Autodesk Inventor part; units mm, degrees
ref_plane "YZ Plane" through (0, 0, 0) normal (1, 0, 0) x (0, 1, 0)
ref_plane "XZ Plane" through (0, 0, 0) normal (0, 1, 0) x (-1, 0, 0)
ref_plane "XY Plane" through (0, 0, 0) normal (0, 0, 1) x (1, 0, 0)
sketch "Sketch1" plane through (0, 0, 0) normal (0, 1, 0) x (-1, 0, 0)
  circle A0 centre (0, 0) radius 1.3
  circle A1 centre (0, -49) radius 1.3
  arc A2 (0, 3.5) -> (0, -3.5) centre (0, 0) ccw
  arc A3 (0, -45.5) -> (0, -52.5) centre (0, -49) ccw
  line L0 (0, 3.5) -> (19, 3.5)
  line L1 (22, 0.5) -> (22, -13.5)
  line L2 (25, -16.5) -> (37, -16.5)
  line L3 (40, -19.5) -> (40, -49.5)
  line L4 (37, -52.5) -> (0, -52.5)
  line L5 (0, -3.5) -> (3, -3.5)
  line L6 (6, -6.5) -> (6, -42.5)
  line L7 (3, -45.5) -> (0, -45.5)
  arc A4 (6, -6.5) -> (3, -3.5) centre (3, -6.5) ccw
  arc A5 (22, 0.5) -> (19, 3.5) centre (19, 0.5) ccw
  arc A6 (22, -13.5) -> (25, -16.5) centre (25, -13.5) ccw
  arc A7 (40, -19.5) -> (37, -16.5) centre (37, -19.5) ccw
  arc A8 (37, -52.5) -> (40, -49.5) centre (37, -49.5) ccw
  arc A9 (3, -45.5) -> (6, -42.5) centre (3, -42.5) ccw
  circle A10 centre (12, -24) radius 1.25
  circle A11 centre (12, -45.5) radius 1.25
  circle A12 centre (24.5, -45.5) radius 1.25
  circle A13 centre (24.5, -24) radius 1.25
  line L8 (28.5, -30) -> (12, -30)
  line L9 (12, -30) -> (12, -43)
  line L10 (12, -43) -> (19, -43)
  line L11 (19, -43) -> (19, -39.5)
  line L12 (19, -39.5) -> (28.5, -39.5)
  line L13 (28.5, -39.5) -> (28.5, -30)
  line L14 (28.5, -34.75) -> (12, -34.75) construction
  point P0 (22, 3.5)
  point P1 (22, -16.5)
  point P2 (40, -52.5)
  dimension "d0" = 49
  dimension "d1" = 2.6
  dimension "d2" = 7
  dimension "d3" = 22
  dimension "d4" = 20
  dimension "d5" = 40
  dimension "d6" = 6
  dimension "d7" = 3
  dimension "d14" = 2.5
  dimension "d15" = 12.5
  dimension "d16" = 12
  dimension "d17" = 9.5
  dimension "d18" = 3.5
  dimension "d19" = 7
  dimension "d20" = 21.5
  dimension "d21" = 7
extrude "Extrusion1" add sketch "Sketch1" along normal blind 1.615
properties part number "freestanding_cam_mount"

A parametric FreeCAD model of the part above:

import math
import FreeCAD as App
import Part
import Sketcher

V = App.Vector


def add_polygon(sketch, points):
    """Adds a closed chain of lines whose ends are joined by coincident constraints."""
    first, n = sketch.GeometryCount, len(points)
    for a, b in zip(points, points[1:] + points[:1]):
        sketch.addGeometry(Part.LineSegment(App.Vector(*a, 0), App.Vector(*b, 0)), False)
    for i in range(n):
        sketch.addConstraint(Sketcher.Constraint("Coincident", first + i, 2, first + (i + 1) % n, 1))

doc = App.newDocument("Part")
body = doc.addObject("PartDesign::Body", "Body")

# Sketch on XZ plane
sketch1 = body.newObject("Sketcher::SketchObject", "Sketch")
sketch1.AttachmentSupport = (doc.getObject("XZ_Plane"), [""])
sketch1.MapMode = "FlatFace"
sketch1.addGeometry(Part.LineSegment(V(-19, 3.5, 0), V(0, 3.5, 0)), False)  # 0
sketch1.addGeometry(Part.ArcOfCircle(Part.Circle(V(0, 0, 0), V(0, 0, 1), 3.5), math.radians(-90), math.radians(90)), False)  # 1
sketch1.addGeometry(Part.LineSegment(V(0, -3.5, 0), V(-3, -3.5, 0)), False)  # 2
sketch1.addGeometry(Part.ArcOfCircle(Part.Circle(V(-3, -6.5, 0), V(0, 0, 1), 3), math.radians(90), math.radians(180)), False)  # 3
sketch1.addGeometry(Part.LineSegment(V(-6, -6.5, 0), V(-6, -42.5, 0)), False)  # 4
sketch1.addGeometry(Part.ArcOfCircle(Part.Circle(V(-3, -42.5, 0), V(0, 0, 1), 3), math.radians(180), math.radians(270)), False)  # 5
sketch1.addGeometry(Part.LineSegment(V(-3, -45.5, 0), V(0, -45.5, 0)), False)  # 6
sketch1.addGeometry(Part.ArcOfCircle(Part.Circle(V(0, -49, 0), V(0, 0, 1), 3.5), math.radians(-90), math.radians(90)), False)  # 7
sketch1.addGeometry(Part.LineSegment(V(0, -52.5, 0), V(-37, -52.5, 0)), False)  # 8
sketch1.addGeometry(Part.ArcOfCircle(Part.Circle(V(-37, -49.5, 0), V(0, 0, 1), 3), math.radians(180), math.radians(270)), False)  # 9
sketch1.addGeometry(Part.LineSegment(V(-40, -49.5, 0), V(-40, -19.5, 0)), False)  # 10
sketch1.addGeometry(Part.ArcOfCircle(Part.Circle(V(-37, -19.5, 0), V(0, 0, 1), 3), math.radians(90), math.radians(180)), False)  # 11
sketch1.addGeometry(Part.LineSegment(V(-37, -16.5, 0), V(-25, -16.5, 0)), False)  # 12
sketch1.addGeometry(Part.ArcOfCircle(Part.Circle(V(-25, -13.5, 0), V(0, 0, 1), 3), math.radians(-90), math.radians(0)), False)  # 13
sketch1.addGeometry(Part.LineSegment(V(-22, -13.5, 0), V(-22, 0.5, 0)), False)  # 14
sketch1.addGeometry(Part.ArcOfCircle(Part.Circle(V(-19, 0.5, 0), V(0, 0, 1), 3), math.radians(90), math.radians(180)), False)  # 15
sketch1.addGeometry(Part.Circle(V(0, -49, 0), V(0, 0, 1), 1.3), False)  # 16
sketch1.addGeometry(Part.Circle(V(-12, -45.5, 0), V(0, 0, 1), 1.2), False)  # 17
sketch1.addGeometry(Part.Circle(V(-24.5, -45.5, 0), V(0, 0, 1), 1.2), False)  # 18
add_polygon(sketch1, [(-12, -30), (-28.5, -30), (-28.5, -39.5), (-19, -39.5), (-19, -43), (-12, -43)])  # lines 19-24
sketch1.addGeometry(Part.Circle(V(-12, -24, 0), V(0, 0, 1), 1.2), False)  # 25
sketch1.addGeometry(Part.Circle(V(0, 0, 0), V(0, 0, 1), 1.3), False)  # 26
sketch1.addGeometry(Part.Circle(V(-24.5, -24, 0), V(0, 0, 1), 1.2), False)  # 27
sketch1.addConstraint([
    Sketcher.Constraint("Tangent", 0, 2, 1, 2),
    Sketcher.Constraint("Tangent", 1, 1, 2, 1),
    Sketcher.Constraint("Tangent", 2, 2, 3, 1),
    Sketcher.Constraint("Tangent", 3, 2, 4, 1),
    Sketcher.Constraint("Tangent", 4, 2, 5, 1),
    Sketcher.Constraint("Tangent", 5, 2, 6, 1),
    Sketcher.Constraint("Tangent", 6, 2, 7, 2),
    Sketcher.Constraint("Tangent", 7, 1, 8, 1),
    Sketcher.Constraint("Tangent", 8, 2, 9, 2),
    Sketcher.Constraint("Tangent", 9, 1, 10, 1),
    Sketcher.Constraint("Tangent", 10, 2, 11, 2),
    Sketcher.Constraint("Tangent", 11, 1, 12, 1),
    Sketcher.Constraint("Tangent", 12, 2, 13, 1),
    Sketcher.Constraint("Tangent", 13, 2, 14, 1),
    Sketcher.Constraint("Tangent", 14, 2, 15, 2),
    Sketcher.Constraint("Tangent", 15, 1, 0, 1),
    Sketcher.Constraint("Horizontal", 0),
    Sketcher.Constraint("Horizontal", 2),
    Sketcher.Constraint("Vertical", 4),
    Sketcher.Constraint("Horizontal", 6),
    Sketcher.Constraint("Horizontal", 8),
    Sketcher.Constraint("Vertical", 10),
    Sketcher.Constraint("Horizontal", 12),
    Sketcher.Constraint("Vertical", 14),
    Sketcher.Constraint("Horizontal", 19),
    Sketcher.Constraint("Vertical", 20),
    Sketcher.Constraint("Horizontal", 21),
    Sketcher.Constraint("Vertical", 22),
    Sketcher.Constraint("Horizontal", 23),
    Sketcher.Constraint("Vertical", 24),
    Sketcher.Constraint("Coincident", 1, 3, -1, 1),
    Sketcher.Constraint("Coincident", 26, 3, -1, 1),
    Sketcher.Constraint("Coincident", 16, 3, 7, 3),
    Sketcher.Constraint("Equal", 3, 5),
    Sketcher.Constraint("Equal", 1, 7),
    Sketcher.Constraint("Equal", 5, 9),
    Sketcher.Constraint("Equal", 9, 11),
    Sketcher.Constraint("Equal", 11, 13),
    Sketcher.Constraint("Equal", 13, 15),
    Sketcher.Constraint("Equal", 17, 18),
    Sketcher.Constraint("Equal", 18, 25),
    Sketcher.Constraint("Equal", 16, 26),
    Sketcher.Constraint("Equal", 25, 27),
    Sketcher.Constraint("PointOnObject", 7, 3, -2),
    Sketcher.Constraint("Horizontal", 17, 3, 18, 3),
    Sketcher.Constraint("Horizontal", 25, 3, 27, 3),
    Sketcher.Constraint("Horizontal", 18, 3, 5, 2),
    Sketcher.Constraint("Vertical", 17, 3, 25, 3),
    Sketcher.Constraint("Vertical", 18, 3, 27, 3),
    Sketcher.Constraint("Vertical", 15, 1, 21, 2),
    Sketcher.Constraint("Vertical", 25, 3, 23, 2),
    Sketcher.Constraint("Equal", 21, 20),
    Sketcher.Constraint("Radius", 3, 3.0),
    Sketcher.Constraint("Diameter", 16, 2.6),
    Sketcher.Constraint("Diameter", 17, 2.5),
    Sketcher.Constraint("Radius", 1, 3.5),
    Sketcher.Constraint("DistanceX", 2, 2, 2, 1, 3.0),
    Sketcher.Constraint("DistanceX", 12, 1, 12, 2, 12.0),
    Sketcher.Constraint("DistanceX", 23, 1, 23, 2, 7.0),
    Sketcher.Constraint("DistanceX", 21, 1, 21, 2, 9.5),
    Sketcher.Constraint("DistanceY", 22, 2, 22, 1, 3.5),
    Sketcher.Constraint("DistanceY", 7, 3, -1, 1, 49.0),
    Sketcher.Constraint("DistanceX", 17, 3, -1, 1, 12.0),
    Sketcher.Constraint("DistanceY", 13, 3, 3, 3, 7.0),
    Sketcher.Constraint("DistanceY", 19, 2, 27, 3, 6.0),
    Sketcher.Constraint("DistanceY", 18, 3, 20, 2, 6.0),
    Sketcher.Constraint("DistanceX", 18, 3, 17, 3, 12.5),
])
pad1 = body.newObject("PartDesign::Pad", "Pad")
pad1.Profile = sketch1
pad1.Length = 1.615
pad1.Reversed = True

doc.recompute()
